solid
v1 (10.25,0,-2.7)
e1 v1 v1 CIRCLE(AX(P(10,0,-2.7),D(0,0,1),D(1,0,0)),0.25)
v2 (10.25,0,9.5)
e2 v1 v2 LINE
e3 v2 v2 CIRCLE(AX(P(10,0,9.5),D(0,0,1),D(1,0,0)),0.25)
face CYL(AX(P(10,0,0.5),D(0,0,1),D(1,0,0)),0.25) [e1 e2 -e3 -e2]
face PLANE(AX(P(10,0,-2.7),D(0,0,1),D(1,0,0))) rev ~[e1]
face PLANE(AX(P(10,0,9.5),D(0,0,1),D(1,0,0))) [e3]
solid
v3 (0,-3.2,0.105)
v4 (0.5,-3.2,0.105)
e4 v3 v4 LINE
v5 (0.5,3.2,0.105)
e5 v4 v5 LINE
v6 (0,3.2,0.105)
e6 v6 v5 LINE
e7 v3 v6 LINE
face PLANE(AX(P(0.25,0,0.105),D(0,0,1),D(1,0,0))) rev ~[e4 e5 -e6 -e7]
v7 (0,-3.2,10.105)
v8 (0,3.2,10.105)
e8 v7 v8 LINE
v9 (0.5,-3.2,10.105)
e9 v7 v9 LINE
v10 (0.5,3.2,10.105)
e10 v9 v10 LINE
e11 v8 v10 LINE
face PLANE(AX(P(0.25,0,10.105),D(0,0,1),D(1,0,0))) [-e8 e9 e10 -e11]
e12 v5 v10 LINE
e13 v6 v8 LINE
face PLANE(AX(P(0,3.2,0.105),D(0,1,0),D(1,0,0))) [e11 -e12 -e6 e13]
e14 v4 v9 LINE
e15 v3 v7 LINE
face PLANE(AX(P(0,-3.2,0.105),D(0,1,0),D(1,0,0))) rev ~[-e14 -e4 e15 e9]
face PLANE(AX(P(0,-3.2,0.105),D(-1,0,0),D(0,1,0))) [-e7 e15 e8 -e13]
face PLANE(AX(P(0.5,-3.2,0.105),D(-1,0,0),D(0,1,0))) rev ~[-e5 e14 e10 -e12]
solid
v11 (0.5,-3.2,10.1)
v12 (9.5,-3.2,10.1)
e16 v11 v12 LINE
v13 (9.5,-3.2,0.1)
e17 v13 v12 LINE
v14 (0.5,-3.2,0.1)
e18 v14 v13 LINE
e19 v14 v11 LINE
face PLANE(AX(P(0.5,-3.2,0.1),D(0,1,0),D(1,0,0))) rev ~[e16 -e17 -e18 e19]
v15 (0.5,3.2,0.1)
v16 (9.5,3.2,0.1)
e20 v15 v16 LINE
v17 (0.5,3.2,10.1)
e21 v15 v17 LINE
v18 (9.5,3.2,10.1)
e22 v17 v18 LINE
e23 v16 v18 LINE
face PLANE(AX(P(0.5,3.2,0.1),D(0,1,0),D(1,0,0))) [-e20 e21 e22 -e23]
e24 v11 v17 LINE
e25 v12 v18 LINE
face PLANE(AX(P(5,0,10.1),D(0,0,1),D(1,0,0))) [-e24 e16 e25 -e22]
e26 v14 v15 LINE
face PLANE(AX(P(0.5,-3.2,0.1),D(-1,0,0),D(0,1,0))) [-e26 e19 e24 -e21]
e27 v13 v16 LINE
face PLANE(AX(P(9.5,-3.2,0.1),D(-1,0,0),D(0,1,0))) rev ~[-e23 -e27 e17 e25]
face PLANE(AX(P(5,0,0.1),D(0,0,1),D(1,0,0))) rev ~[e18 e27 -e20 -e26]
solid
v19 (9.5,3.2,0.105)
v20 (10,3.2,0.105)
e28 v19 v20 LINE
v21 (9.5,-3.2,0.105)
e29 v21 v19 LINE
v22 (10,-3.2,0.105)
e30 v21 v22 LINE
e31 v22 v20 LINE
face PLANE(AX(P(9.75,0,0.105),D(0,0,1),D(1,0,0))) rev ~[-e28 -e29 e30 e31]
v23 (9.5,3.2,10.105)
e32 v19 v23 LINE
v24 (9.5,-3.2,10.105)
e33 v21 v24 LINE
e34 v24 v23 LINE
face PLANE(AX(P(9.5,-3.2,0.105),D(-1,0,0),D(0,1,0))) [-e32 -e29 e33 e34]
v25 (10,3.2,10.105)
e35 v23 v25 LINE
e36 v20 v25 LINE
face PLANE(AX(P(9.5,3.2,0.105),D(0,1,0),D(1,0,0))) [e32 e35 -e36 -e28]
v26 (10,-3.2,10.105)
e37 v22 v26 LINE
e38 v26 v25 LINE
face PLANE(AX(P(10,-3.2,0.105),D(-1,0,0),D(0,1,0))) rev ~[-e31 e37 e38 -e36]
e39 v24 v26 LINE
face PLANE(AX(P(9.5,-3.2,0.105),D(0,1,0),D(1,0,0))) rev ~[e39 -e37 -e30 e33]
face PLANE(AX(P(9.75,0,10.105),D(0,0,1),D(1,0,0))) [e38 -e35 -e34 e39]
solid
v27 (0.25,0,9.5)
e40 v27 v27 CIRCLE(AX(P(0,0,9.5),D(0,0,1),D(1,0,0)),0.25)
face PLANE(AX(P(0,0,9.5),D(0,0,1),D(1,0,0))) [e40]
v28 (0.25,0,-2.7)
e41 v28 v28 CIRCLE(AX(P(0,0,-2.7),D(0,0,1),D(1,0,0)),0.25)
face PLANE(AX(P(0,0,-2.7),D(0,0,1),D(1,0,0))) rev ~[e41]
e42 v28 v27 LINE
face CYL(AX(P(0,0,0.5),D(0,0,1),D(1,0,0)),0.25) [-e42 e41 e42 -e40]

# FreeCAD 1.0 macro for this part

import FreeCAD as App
import Part
import Sketcher
from FreeCAD import Vector


def add_polygon(sketch, points):
    """Adds a closed chain of lines whose ends are joined by coincident constraints."""
    first, n = sketch.GeometryCount, len(points)
    for a, b in zip(points, points[1:] + points[:1]):
        sketch.addGeometry(Part.LineSegment(App.Vector(*a, 0), App.Vector(*b, 0)), False)
    for i in range(n):
        sketch.addConstraint(Sketcher.Constraint("Coincident", first + i, 2, first + (i + 1) % n, 1))

doc = App.newDocument("Part")
body = doc.addObject("PartDesign::Body", "Body")

# Sketch on XY plane
sketch1 = doc.addObject("Sketcher::SketchObject", "Sketch")
body.addObject(sketch1)
sketch1.AttachmentSupport = (doc.XY_Plane, [""])
sketch1.MapMode = "FlatFace"
sketch1.AttachmentOffset = App.Placement(Vector(0, 0, 0.1), App.Rotation())
add_polygon(sketch1, [(0, 3), (0, -3), (10, -3), (10, 3)])  # lines 0-3
sketch1.addConstraint(Sketcher.Constraint("Vertical", 0))
sketch1.addConstraint(Sketcher.Constraint("Horizontal", 1))
sketch1.addConstraint(Sketcher.Constraint("Vertical", 2))
sketch1.addConstraint(Sketcher.Constraint("Horizontal", 3))
sketch1.addConstraint(Sketcher.Constraint("DistanceX", 1, 1, 1, 2, 9.0))
sketch1.addConstraint(Sketcher.Constraint("DistanceY", 0, 2, 0, 1, 6.4))
sketch1.addConstraint(Sketcher.Constraint("DistanceX", -1, 1, 0, 2, 0.5))
sketch1.addConstraint(Sketcher.Constraint("DistanceY", 0, 2, -1, 1, 3.2))
pad1 = doc.addObject("PartDesign::Pad", "Pad")
body.addObject(pad1)
pad1.Profile = sketch1
pad1.Length = 10
body2 = doc.addObject("PartDesign::Body", "Body001")
body2.AllowCompound = True

# Sketch on XY plane
sketch2 = doc.addObject("Sketcher::SketchObject", "Sketch001")
body2.addObject(sketch2)
sketch2.AttachmentSupport = (doc.getObject("XY_Plane001"), [""])
sketch2.MapMode = "FlatFace"
sketch2.AttachmentOffset = App.Placement(Vector(0, 0, 0.5), App.Rotation())
sketch2.addGeometry(Part.Circle(Vector(0, 0, 0), Vector(0, 0, 1), 0.25), False)
sketch2.addGeometry(Part.Circle(Vector(10, 0, 0), Vector(0, 0, 1), 0.25), False)
sketch2.addConstraint(Sketcher.Constraint("Coincident", 0, 3, -1, 1))
sketch2.addConstraint(Sketcher.Constraint("Equal", 0, 1))
sketch2.addConstraint(Sketcher.Constraint("PointOnObject", 1, 3, -1))
sketch2.addConstraint(Sketcher.Constraint("Diameter", 0, 0.5))
sketch2.addConstraint(Sketcher.Constraint("DistanceX", -1, 1, 1, 3, 10.0))
pad2 = doc.addObject("PartDesign::Pad", "Pad001")
body2.addObject(pad2)
pad2.Profile = sketch2
pad2.Type = "TwoLengths"
pad2.Length = 9
pad2.Length2 = 3.2
body3 = doc.addObject("PartDesign::Body", "Body002")
body3.AllowCompound = True

# Sketch on XY plane
sketch3 = doc.addObject("Sketcher::SketchObject", "Sketch002")
body3.addObject(sketch3)
sketch3.AttachmentSupport = (doc.getObject("XY_Plane002"), [""])
sketch3.MapMode = "FlatFace"
sketch3.AttachmentOffset = App.Placement(Vector(0, 0, 0.105), App.Rotation())
add_polygon(sketch3, [(0, 3.2), (0, -3.2), (0.5, -3.2), (0.5, 3.2)])  # lines 0-3
add_polygon(sketch3, [(9.5, 3.2), (9.5, -3.2), (10, -3.2), (10, 3.2)])  # lines 4-7
sketch3.addConstraint(Sketcher.Constraint("Vertical", 0))
sketch3.addConstraint(Sketcher.Constraint("Horizontal", 1))
sketch3.addConstraint(Sketcher.Constraint("Vertical", 2))
sketch3.addConstraint(Sketcher.Constraint("Horizontal", 3))
sketch3.addConstraint(Sketcher.Constraint("Vertical", 4))
sketch3.addConstraint(Sketcher.Constraint("Horizontal", 5))
sketch3.addConstraint(Sketcher.Constraint("Vertical", 6))
sketch3.addConstraint(Sketcher.Constraint("Horizontal", 7))
sketch3.addConstraint(Sketcher.Constraint("Symmetric", 0, 2, 3, 2, -1, 1))
sketch3.addConstraint(Sketcher.Constraint("Horizontal", 1, 2, 4, 2))
sketch3.addConstraint(Sketcher.Constraint("Horizontal", 3, 2, 6, 2))
sketch3.addConstraint(Sketcher.Constraint("Equal", 3, 5))
sketch3.addConstraint(Sketcher.Constraint("DistanceX", 1, 1, 1, 2, 0.5))
sketch3.addConstraint(Sketcher.Constraint("DistanceY", 0, 2, 0, 1, 6.4))
sketch3.addConstraint(Sketcher.Constraint("DistanceX", -1, 1, 5, 2, 10.0))
pad3 = doc.addObject("PartDesign::Pad", "Pad002")
body3.addObject(pad3)
pad3.Profile = sketch3
pad3.Length = 10

doc.recompute()
